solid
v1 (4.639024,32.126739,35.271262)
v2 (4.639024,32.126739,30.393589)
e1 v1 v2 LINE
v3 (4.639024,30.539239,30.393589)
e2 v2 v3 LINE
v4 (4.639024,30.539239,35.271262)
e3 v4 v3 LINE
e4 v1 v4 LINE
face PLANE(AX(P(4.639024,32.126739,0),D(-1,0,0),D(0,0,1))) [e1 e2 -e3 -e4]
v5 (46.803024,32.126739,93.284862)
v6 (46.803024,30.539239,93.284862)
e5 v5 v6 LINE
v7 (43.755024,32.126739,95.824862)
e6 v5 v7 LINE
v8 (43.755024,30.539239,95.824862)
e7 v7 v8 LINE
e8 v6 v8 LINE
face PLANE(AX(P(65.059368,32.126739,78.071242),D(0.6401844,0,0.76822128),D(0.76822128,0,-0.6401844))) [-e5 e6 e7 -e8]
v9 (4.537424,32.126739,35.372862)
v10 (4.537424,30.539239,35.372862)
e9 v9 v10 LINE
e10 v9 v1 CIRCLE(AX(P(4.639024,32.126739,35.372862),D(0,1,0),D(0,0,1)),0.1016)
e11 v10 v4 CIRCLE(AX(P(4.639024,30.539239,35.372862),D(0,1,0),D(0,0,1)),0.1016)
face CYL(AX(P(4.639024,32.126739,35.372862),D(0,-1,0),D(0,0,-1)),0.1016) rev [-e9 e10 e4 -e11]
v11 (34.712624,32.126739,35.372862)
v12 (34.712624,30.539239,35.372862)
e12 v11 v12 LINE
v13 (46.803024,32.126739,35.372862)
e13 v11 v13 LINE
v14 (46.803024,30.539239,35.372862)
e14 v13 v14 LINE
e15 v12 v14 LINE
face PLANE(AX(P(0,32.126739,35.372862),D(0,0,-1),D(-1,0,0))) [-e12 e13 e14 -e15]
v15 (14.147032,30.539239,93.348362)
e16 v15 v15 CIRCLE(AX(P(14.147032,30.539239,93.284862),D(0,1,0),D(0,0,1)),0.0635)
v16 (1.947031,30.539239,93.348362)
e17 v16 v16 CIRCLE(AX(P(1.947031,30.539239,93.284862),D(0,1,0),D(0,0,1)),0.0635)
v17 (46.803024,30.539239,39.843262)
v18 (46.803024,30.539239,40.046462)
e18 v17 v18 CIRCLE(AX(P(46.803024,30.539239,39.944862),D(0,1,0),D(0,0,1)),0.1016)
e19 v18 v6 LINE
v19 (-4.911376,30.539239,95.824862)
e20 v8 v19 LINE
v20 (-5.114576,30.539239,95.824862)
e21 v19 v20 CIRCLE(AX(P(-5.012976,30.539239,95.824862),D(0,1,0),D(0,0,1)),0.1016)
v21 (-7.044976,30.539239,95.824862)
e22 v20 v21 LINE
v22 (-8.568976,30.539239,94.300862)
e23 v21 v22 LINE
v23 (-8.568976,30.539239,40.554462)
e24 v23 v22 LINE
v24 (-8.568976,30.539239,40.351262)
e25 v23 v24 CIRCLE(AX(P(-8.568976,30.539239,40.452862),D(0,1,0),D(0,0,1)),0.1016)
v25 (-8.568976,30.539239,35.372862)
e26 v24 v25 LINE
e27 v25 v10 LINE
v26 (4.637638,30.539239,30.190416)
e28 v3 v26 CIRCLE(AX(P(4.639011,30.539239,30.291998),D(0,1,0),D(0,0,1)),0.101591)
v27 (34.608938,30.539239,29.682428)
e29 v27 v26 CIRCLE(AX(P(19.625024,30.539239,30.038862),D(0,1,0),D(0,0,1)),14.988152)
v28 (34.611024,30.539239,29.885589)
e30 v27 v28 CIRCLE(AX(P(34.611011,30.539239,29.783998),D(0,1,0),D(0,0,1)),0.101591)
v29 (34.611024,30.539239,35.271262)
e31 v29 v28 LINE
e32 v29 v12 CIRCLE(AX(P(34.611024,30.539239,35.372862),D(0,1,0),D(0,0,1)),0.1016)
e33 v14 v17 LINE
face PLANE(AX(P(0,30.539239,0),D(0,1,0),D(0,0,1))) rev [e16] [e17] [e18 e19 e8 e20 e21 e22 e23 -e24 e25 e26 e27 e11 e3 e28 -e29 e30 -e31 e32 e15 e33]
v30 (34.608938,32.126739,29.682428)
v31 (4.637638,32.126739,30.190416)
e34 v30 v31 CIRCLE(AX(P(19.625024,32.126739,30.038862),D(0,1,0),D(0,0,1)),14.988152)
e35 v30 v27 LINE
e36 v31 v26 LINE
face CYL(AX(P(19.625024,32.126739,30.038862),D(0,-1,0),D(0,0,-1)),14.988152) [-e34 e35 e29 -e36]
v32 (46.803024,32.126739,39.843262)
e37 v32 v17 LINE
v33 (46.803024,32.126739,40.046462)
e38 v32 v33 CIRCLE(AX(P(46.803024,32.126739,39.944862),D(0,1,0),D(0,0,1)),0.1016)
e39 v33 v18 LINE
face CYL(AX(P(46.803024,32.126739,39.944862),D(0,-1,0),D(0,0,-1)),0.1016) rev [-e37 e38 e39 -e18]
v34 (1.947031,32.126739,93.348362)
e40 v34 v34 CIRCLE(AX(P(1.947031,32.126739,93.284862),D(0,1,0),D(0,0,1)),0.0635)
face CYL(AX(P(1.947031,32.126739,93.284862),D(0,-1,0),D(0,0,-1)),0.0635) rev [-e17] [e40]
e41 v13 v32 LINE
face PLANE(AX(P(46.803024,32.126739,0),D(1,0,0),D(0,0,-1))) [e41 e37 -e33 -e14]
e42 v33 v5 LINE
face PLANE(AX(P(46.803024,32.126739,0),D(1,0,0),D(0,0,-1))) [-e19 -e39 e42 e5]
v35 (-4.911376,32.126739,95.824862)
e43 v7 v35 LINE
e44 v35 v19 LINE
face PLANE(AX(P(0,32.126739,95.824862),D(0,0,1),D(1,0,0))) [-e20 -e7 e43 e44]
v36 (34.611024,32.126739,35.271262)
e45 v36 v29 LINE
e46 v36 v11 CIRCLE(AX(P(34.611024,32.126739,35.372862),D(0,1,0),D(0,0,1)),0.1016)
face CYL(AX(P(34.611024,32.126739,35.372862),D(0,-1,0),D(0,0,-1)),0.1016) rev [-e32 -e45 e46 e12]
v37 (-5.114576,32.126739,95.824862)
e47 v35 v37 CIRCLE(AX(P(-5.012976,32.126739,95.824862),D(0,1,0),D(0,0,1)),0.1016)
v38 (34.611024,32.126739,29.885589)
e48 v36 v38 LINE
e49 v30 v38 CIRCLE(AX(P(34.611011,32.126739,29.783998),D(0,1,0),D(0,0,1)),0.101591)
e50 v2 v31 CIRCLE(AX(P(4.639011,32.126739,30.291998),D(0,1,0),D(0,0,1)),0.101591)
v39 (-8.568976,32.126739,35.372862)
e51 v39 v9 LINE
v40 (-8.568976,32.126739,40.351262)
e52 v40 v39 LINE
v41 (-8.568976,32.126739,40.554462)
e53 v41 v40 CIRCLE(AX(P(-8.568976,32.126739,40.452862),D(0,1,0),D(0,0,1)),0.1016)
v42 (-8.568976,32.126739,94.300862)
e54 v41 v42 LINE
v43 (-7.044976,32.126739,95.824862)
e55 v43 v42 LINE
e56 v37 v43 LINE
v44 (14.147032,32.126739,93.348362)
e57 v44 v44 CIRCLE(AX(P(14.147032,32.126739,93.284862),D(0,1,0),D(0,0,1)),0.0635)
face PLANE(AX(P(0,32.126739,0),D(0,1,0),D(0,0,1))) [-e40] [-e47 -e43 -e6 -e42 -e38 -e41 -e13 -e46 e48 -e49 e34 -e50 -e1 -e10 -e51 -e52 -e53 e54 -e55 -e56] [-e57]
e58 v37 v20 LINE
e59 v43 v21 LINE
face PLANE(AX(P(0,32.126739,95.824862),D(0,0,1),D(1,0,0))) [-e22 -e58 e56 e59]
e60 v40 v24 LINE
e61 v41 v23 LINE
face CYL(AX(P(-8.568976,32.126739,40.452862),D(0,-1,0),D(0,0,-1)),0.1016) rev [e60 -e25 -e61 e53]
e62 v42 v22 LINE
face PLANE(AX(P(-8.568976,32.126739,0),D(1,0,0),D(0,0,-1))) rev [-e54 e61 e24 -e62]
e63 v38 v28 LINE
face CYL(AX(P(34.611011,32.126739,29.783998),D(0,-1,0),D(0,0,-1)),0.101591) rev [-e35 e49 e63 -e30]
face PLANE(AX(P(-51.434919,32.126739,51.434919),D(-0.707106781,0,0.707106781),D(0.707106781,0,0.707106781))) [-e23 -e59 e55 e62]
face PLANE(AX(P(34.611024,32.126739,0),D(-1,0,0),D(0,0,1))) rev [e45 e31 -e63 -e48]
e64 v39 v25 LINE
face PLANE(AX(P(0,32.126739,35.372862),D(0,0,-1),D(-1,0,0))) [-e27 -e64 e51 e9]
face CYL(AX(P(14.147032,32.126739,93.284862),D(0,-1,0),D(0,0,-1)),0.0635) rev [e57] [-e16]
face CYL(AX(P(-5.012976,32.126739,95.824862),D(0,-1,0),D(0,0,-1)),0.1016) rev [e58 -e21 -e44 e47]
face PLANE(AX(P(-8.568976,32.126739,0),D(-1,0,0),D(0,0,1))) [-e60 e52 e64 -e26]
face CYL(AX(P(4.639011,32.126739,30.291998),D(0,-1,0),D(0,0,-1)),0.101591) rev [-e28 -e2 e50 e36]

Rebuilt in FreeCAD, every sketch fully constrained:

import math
import FreeCAD as App
import Part
import Sketcher
Q = App.Units.Quantity

doc = App.newDocument("Part")
body = doc.addObject("PartDesign::Body", "Body")

sketch1 = body.newObject("Sketcher::SketchObject", "Sketch")
sketch1.AttachmentSupport = (doc.getObject("XZ_Plane"), [""])
sketch1.MapMode = "FlatFace"
sketch1.AttachmentOffset = App.Placement(App.Vector(0, 0, -30.539239), App.Rotation())
sketch1.addGeometry(Part.ArcOfCircle(Part.Circle(App.Vector(46.8, 39.94, 0), App.Vector(0, 0, 1), 0.1), math.radians(90), math.radians(180)), False)
sketch1.addGeometry(Part.ArcOfCircle(Part.Circle(App.Vector(46.8, 39.94, 0), App.Vector(0, 0, 1), 0.1), math.radians(180), math.radians(270)), False)
sketch1.addGeometry(Part.LineSegment(App.Vector(46.8, 39.84, 0), App.Vector(46.8, 35.37, 0)), False)
sketch1.addGeometry(Part.LineSegment(App.Vector(46.8, 35.37, 0), App.Vector(34.71, 35.37, 0)), False)
sketch1.addGeometry(Part.ArcOfCircle(Part.Circle(App.Vector(34.61, 35.37, 0), App.Vector(0, 0, 1), 0.1), math.radians(0), math.radians(90)), False)
sketch1.addGeometry(Part.ArcOfCircle(Part.Circle(App.Vector(34.61, 35.37, 0), App.Vector(0, 0, 1), 0.1), math.radians(90), math.radians(180)), False)
sketch1.addGeometry(Part.ArcOfCircle(Part.Circle(App.Vector(34.61, 35.37, 0), App.Vector(0, 0, 1), 0.1), math.radians(180), math.radians(270)), False)
sketch1.addGeometry(Part.LineSegment(App.Vector(34.61, 35.27, 0), App.Vector(34.61, 29.89, 0)), False)
sketch1.addGeometry(Part.ArcOfCircle(Part.Circle(App.Vector(34.61, 29.78, 0), App.Vector(0, 0, 1), 0.1), math.radians(90), math.radians(180)), False)
sketch1.addGeometry(Part.ArcOfCircle(Part.Circle(App.Vector(34.61, 29.78, 0), App.Vector(0, 0, 1), 0.1), math.radians(180), math.radians(269)), False)
sketch1.addGeometry(Part.ArcOfCircle(Part.Circle(App.Vector(19.63, 30.04, 0), App.Vector(0, 0, 1), 14.99), math.radians(179), math.radians(359)), False)
sketch1.addGeometry(Part.ArcOfCircle(Part.Circle(App.Vector(4.64, 30.29, 0), App.Vector(0, 0, 1), 0.1), math.radians(-91), math.radians(0)), False)
sketch1.addGeometry(Part.ArcOfCircle(Part.Circle(App.Vector(4.64, 30.29, 0), App.Vector(0, 0, 1), 0.1), math.radians(0), math.radians(90)), False)
sketch1.addGeometry(Part.LineSegment(App.Vector(4.64, 30.39, 0), App.Vector(4.64, 35.27, 0)), False)
sketch1.addGeometry(Part.ArcOfCircle(Part.Circle(App.Vector(4.64, 35.37, 0), App.Vector(0, 0, 1), 0.1), math.radians(-90), math.radians(0)), False)
sketch1.addGeometry(Part.ArcOfCircle(Part.Circle(App.Vector(4.64, 35.37, 0), App.Vector(0, 0, 1), 0.1), math.radians(0), math.radians(90)), False)
sketch1.addGeometry(Part.ArcOfCircle(Part.Circle(App.Vector(4.64, 35.37, 0), App.Vector(0, 0, 1), 0.1), math.radians(90), math.radians(180)), False)
sketch1.addGeometry(Part.LineSegment(App.Vector(4.54, 35.37, 0), App.Vector(-8.57, 35.37, 0)), False)
sketch1.addGeometry(Part.LineSegment(App.Vector(-8.57, 35.37, 0), App.Vector(-8.57, 40.35, 0)), False)
sketch1.addGeometry(Part.ArcOfCircle(Part.Circle(App.Vector(-8.57, 40.45, 0), App.Vector(0, 0, 1), 0.1), math.radians(-90), math.radians(0)), False)
sketch1.addGeometry(Part.ArcOfCircle(Part.Circle(App.Vector(-8.57, 40.45, 0), App.Vector(0, 0, 1), 0.1), math.radians(0), math.radians(90)), False)
sketch1.addGeometry(Part.LineSegment(App.Vector(-8.57, 40.55, 0), App.Vector(-8.57, 94.3, 0)), False)
sketch1.addGeometry(Part.LineSegment(App.Vector(-8.57, 94.3, 0), App.Vector(-7.04, 95.82, 0)), False)
sketch1.addGeometry(Part.LineSegment(App.Vector(-7.04, 95.82, 0), App.Vector(-5.11, 95.82, 0)), False)
sketch1.addGeometry(Part.ArcOfCircle(Part.Circle(App.Vector(-5.01, 95.82, 0), App.Vector(0, 0, 1), 0.1), math.radians(180), math.radians(270)), False)
sketch1.addGeometry(Part.ArcOfCircle(Part.Circle(App.Vector(-5.01, 95.82, 0), App.Vector(0, 0, 1), 0.1), math.radians(-90), math.radians(0)), False)
sketch1.addGeometry(Part.LineSegment(App.Vector(-4.91, 95.82, 0), App.Vector(43.76, 95.82, 0)), False)
sketch1.addGeometry(Part.LineSegment(App.Vector(43.76, 95.82, 0), App.Vector(46.8, 93.28, 0)), False)
sketch1.addGeometry(Part.LineSegment(App.Vector(46.8, 93.28, 0), App.Vector(46.8, 40.05, 0)), False)
sketch1.addGeometry(Part.ArcOfCircle(Part.Circle(App.Vector(1.95, 93.28, 0), App.Vector(0, 0, 1), 0.06), math.radians(-90), math.radians(0)), False)
sketch1.addGeometry(Part.ArcOfCircle(Part.Circle(App.Vector(1.95, 93.28, 0), App.Vector(0, 0, 1), 0.06), math.radians(0), math.radians(90)), False)
sketch1.addGeometry(Part.ArcOfCircle(Part.Circle(App.Vector(1.95, 93.28, 0), App.Vector(0, 0, 1), 0.06), math.radians(90), math.radians(180)), False)
sketch1.addGeometry(Part.ArcOfCircle(Part.Circle(App.Vector(1.95, 93.28, 0), App.Vector(0, 0, 1), 0.06), math.radians(180), math.radians(270)), False)
sketch1.addGeometry(Part.ArcOfCircle(Part.Circle(App.Vector(14.15, 93.28, 0), App.Vector(0, 0, 1), 0.06), math.radians(-90), math.radians(0)), False)
sketch1.addGeometry(Part.ArcOfCircle(Part.Circle(App.Vector(14.15, 93.28, 0), App.Vector(0, 0, 1), 0.06), math.radians(0), math.radians(90)), False)
sketch1.addGeometry(Part.ArcOfCircle(Part.Circle(App.Vector(14.15, 93.28, 0), App.Vector(0, 0, 1), 0.06), math.radians(90), math.radians(180)), False)
sketch1.addGeometry(Part.ArcOfCircle(Part.Circle(App.Vector(14.15, 93.28, 0), App.Vector(0, 0, 1), 0.06), math.radians(180), math.radians(270)), False)
sketch1.addConstraint(Sketcher.Constraint("Tangent", 0, 2, 1, 1))
sketch1.addConstraint(Sketcher.Constraint("Coincident", 1, 2, 2, 1))
sketch1.addConstraint(Sketcher.Constraint("Coincident", 2, 2, 3, 1))
sketch1.addConstraint(Sketcher.Constraint("Coincident", 3, 2, 4, 1))
sketch1.addConstraint(Sketcher.Constraint("Tangent", 4, 2, 5, 1))
sketch1.addConstraint(Sketcher.Constraint("Tangent", 5, 2, 6, 1))
sketch1.addConstraint(Sketcher.Constraint("Coincident", 6, 2, 7, 1))
sketch1.addConstraint(Sketcher.Constraint("Coincident", 7, 2, 8, 1))
sketch1.addConstraint(Sketcher.Constraint("Tangent", 8, 2, 9, 1))
sketch1.addConstraint(Sketcher.Constraint("Coincident", 9, 2, 10, 2))
sketch1.addConstraint(Sketcher.Constraint("Coincident", 10, 1, 11, 1))
sketch1.addConstraint(Sketcher.Constraint("Tangent", 11, 2, 12, 1))
sketch1.addConstraint(Sketcher.Constraint("Coincident", 12, 2, 13, 1))
sketch1.addConstraint(Sketcher.Constraint("Coincident", 13, 2, 14, 1))
sketch1.addConstraint(Sketcher.Constraint("Tangent", 14, 2, 15, 1))
sketch1.addConstraint(Sketcher.Constraint("Tangent", 15, 2, 16, 1))
sketch1.addConstraint(Sketcher.Constraint("Coincident", 16, 2, 17, 1))
sketch1.addConstraint(Sketcher.Constraint("Coincident", 17, 2, 18, 1))
sketch1.addConstraint(Sketcher.Constraint("Coincident", 18, 2, 19, 1))
sketch1.addConstraint(Sketcher.Constraint("Tangent", 19, 2, 20, 1))
sketch1.addConstraint(Sketcher.Constraint("Coincident", 20, 2, 21, 1))
sketch1.addConstraint(Sketcher.Constraint("Coincident", 21, 2, 22, 1))
sketch1.addConstraint(Sketcher.Constraint("Coincident", 22, 2, 23, 1))
sketch1.addConstraint(Sketcher.Constraint("Coincident", 23, 2, 24, 1))
sketch1.addConstraint(Sketcher.Constraint("Tangent", 24, 2, 25, 1))
sketch1.addConstraint(Sketcher.Constraint("Coincident", 25, 2, 26, 1))
sketch1.addConstraint(Sketcher.Constraint("Coincident", 26, 2, 27, 1))
sketch1.addConstraint(Sketcher.Constraint("Coincident", 27, 2, 28, 1))
sketch1.addConstraint(Sketcher.Constraint("Coincident", 28, 2, 0, 1))
sketch1.addConstraint(Sketcher.Constraint("Tangent", 29, 2, 30, 1))
sketch1.addConstraint(Sketcher.Constraint("Tangent", 30, 2, 31, 1))
sketch1.addConstraint(Sketcher.Constraint("Tangent", 31, 2, 32, 1))
sketch1.addConstraint(Sketcher.Constraint("Tangent", 32, 2, 29, 1))
sketch1.addConstraint(Sketcher.Constraint("Tangent", 33, 2, 34, 1))
sketch1.addConstraint(Sketcher.Constraint("Tangent", 34, 2, 35, 1))
sketch1.addConstraint(Sketcher.Constraint("Tangent", 35, 2, 36, 1))
sketch1.addConstraint(Sketcher.Constraint("Tangent", 36, 2, 33, 1))
sketch1.addConstraint(Sketcher.Constraint("Vertical", 2))
sketch1.addConstraint(Sketcher.Constraint("Horizontal", 3))
sketch1.addConstraint(Sketcher.Constraint("Vertical", 7))
sketch1.addConstraint(Sketcher.Constraint("Vertical", 13))
sketch1.addConstraint(Sketcher.Constraint("Horizontal", 17))
sketch1.addConstraint(Sketcher.Constraint("Vertical", 18))
sketch1.addConstraint(Sketcher.Constraint("Vertical", 21))
sketch1.addConstraint(Sketcher.Constraint("Horizontal", 23))
sketch1.addConstraint(Sketcher.Constraint("Horizontal", 26))
sketch1.addConstraint(Sketcher.Constraint("Vertical", 28))
sketch1.addConstraint(Sketcher.Constraint("Coincident", 6, 3, 4, 3))
sketch1.addConstraint(Sketcher.Constraint("Coincident", 16, 3, 14, 3))
sketch1.addConstraint(Sketcher.Constraint("Equal", 0, 1))
sketch1.addConstraint(Sketcher.Constraint("Equal", 1, 4))
sketch1.addConstraint(Sketcher.Constraint("Equal", 8, 9))
sketch1.addConstraint(Sketcher.Constraint("Equal", 9, 11))
sketch1.addConstraint(Sketcher.Constraint("Equal", 11, 12))
sketch1.addConstraint(Sketcher.Constraint("Equal", 6, 14))
sketch1.addConstraint(Sketcher.Constraint("Equal", 16, 19))
sketch1.addConstraint(Sketcher.Constraint("Equal", 19, 20))
sketch1.addConstraint(Sketcher.Constraint("Equal", 20, 24))
sketch1.addConstraint(Sketcher.Constraint("Equal", 24, 25))
sketch1.addConstraint(Sketcher.Constraint("Equal", 29, 30))
sketch1.addConstraint(Sketcher.Constraint("Equal", 32, 33))
sketch1.addConstraint(Sketcher.Constraint("Equal", 33, 34))
sketch1.addConstraint(Sketcher.Constraint("Horizontal", 6, 3, 14, 3))
sketch1.addConstraint(Sketcher.Constraint("Horizontal", 32, 3, 33, 3))
sketch1.addConstraint(Sketcher.Constraint("Horizontal", 1, 3, 0, 2))
sketch1.addConstraint(Sketcher.Constraint("Horizontal", 16, 3, 2, 2))
sketch1.addConstraint(Sketcher.Constraint("Horizontal", 3, 2, 5, 2))
sketch1.addConstraint(Sketcher.Constraint("Horizontal", 5, 2, 14, 2))
sketch1.addConstraint(Sketcher.Constraint("Horizontal", 14, 2, 16, 2))
sketch1.addConstraint(Sketcher.Constraint("Horizontal", 20, 3, 19, 2))
sketch1.addConstraint(Sketcher.Constraint("Horizontal", 25, 3, 22, 2))
sketch1.addConstraint(Sketcher.Constraint("Horizontal", 23, 2, 25, 2))
sketch1.addConstraint(Sketcher.Constraint("Horizontal", 36, 3, 27, 2))
sketch1.addConstraint(Sketcher.Constraint("Horizontal", 27, 2, 29, 2))
sketch1.addConstraint(Sketcher.Constraint("Horizontal", 29, 2, 31, 2))
sketch1.addConstraint(Sketcher.Constraint("Horizontal", 31, 2, 33, 2))
sketch1.addConstraint(Sketcher.Constraint("Horizontal", 33, 2, 35, 2))
sketch1.addConstraint(Sketcher.Constraint("Vertical", 0, 3, 1, 2))
sketch1.addConstraint(Sketcher.Constraint("Vertical", 6, 3, 4, 2))
sketch1.addConstraint(Sketcher.Constraint("Vertical", 4, 2, 6, 2))
sketch1.addConstraint(Sketcher.Constraint("Vertical", 5, 2, 8, 2))
sketch1.addConstraint(Sketcher.Constraint("Vertical", 16, 3, 12, 2))
sketch1.addConstraint(Sketcher.Constraint("Vertical", 13, 2, 15, 2))
sketch1.addConstraint(Sketcher.Constraint("Vertical", 20, 3, 17, 2))
sketch1.addConstraint(Sketcher.Constraint("Vertical", 18, 2, 20, 2))
sketch1.addConstraint(Sketcher.Constraint("Vertical", 25, 3, 24, 2))
sketch1.addConstraint(Sketcher.Constraint("Vertical", 2, 2, 27, 2))
sketch1.addConstraint(Sketcher.Constraint("Vertical", 32, 3, 30, 2))
sketch1.addConstraint(Sketcher.Constraint("Vertical", 30, 2, 32, 2))
sketch1.addConstraint(Sketcher.Constraint("Vertical", 36, 3, 34, 2))
sketch1.addConstraint(Sketcher.Constraint("Vertical", 34, 2, 36, 2))
sketch1.addConstraint(Sketcher.Constraint("Angle", 22, Q("45 deg")))
sketch1.addConstraint(Sketcher.Constraint("Radius", 0, Q("0.004 in")))
sketch1.addConstraint(Sketcher.Constraint("Radius", 29, Q("0.0025 in")))
sketch1.addConstraint(Sketcher.Constraint("DistanceX", 3, 2, 3, 1, Q("0.476 in")))
sketch1.addConstraint(Sketcher.Constraint("DistanceX", 17, 2, 17, 1, Q("0.516 in")))
sketch1.addConstraint(Sketcher.Constraint("DistanceX", 23, 1, 23, 2, Q("0.076 in")))
sketch1.addConstraint(Sketcher.Constraint("DistanceX", 26, 1, 26, 2, Q("1.916 in")))
sketch1.addConstraint(Sketcher.Constraint("DistanceY", 2, 2, 2, 1, Q("0.176 in")))
sketch1.addConstraint(Sketcher.Constraint("DistanceY", 18, 1, 18, 2, Q("0.196 in")))
sketch1.addConstraint(Sketcher.Constraint("DistanceY", 21, 1, 21, 2, Q("2.116 in")))
sketch1.addConstraint(Sketcher.Constraint("DistanceY", 28, 2, 28, 1, Q("2.096 in")))
sketch1.addConstraint(Sketcher.Constraint("Radius", 8, Q("0.101591 mm")))
sketch1.addConstraint(Sketcher.Constraint("Radius", 10, Q("14.988152 mm")))
sketch1.addConstraint(Sketcher.Constraint("DistanceX", -1, 1, 11, 2, Q("4.740599 mm")))
sketch1.addConstraint(Sketcher.Constraint("Distance", 22, Q("2.155261 mm")))
sketch1.addConstraint(Sketcher.Constraint("DistanceY", 7, 2, 7, 1, Q("5.385673 mm")))
sketch1.addConstraint(Sketcher.Constraint("DistanceY", 13, 1, 13, 2, Q("4.877673 mm")))
sketch1.addConstraint(Sketcher.Constraint("DistanceY", -1, 1, 0, 3, Q("39.944862 mm")))
sketch1.addConstraint(Sketcher.Constraint("DistanceX", -1, 1, 8, 3, Q("34.611011 mm")))
sketch1.addConstraint(Sketcher.Constraint("DistanceY", -1, 1, 10, 3, Q("30.038862 mm")))
sketch1.addConstraint(Sketcher.Constraint("DistanceX", -1, 1, 29, 3, Q("1.947031 mm")))
sketch1.addConstraint(Sketcher.Constraint("DistanceX", -1, 1, 33, 3, Q("14.147032 mm")))
sketch1.addConstraint(Sketcher.Constraint("DistanceY", -1, 1, 8, 2, Q("29.784862 mm")))
sketch1.addConstraint(Sketcher.Constraint("DistanceX", -1, 1, 10, 1, Q("4.637638 mm")))
sketch1.addConstraint(Sketcher.Constraint("Distance", 27, Q("3.967607 mm")))
sketch1.addConstraint(Sketcher.Constraint("DistanceY", -1, 1, 11, 2, Q("30.291134 mm")))
pad1 = body.newObject("PartDesign::Pad", "Pad")
pad1.Profile = sketch1
pad1.Length = Q("0.0625 in")
pad1.Reversed = True

doc.recompute()
